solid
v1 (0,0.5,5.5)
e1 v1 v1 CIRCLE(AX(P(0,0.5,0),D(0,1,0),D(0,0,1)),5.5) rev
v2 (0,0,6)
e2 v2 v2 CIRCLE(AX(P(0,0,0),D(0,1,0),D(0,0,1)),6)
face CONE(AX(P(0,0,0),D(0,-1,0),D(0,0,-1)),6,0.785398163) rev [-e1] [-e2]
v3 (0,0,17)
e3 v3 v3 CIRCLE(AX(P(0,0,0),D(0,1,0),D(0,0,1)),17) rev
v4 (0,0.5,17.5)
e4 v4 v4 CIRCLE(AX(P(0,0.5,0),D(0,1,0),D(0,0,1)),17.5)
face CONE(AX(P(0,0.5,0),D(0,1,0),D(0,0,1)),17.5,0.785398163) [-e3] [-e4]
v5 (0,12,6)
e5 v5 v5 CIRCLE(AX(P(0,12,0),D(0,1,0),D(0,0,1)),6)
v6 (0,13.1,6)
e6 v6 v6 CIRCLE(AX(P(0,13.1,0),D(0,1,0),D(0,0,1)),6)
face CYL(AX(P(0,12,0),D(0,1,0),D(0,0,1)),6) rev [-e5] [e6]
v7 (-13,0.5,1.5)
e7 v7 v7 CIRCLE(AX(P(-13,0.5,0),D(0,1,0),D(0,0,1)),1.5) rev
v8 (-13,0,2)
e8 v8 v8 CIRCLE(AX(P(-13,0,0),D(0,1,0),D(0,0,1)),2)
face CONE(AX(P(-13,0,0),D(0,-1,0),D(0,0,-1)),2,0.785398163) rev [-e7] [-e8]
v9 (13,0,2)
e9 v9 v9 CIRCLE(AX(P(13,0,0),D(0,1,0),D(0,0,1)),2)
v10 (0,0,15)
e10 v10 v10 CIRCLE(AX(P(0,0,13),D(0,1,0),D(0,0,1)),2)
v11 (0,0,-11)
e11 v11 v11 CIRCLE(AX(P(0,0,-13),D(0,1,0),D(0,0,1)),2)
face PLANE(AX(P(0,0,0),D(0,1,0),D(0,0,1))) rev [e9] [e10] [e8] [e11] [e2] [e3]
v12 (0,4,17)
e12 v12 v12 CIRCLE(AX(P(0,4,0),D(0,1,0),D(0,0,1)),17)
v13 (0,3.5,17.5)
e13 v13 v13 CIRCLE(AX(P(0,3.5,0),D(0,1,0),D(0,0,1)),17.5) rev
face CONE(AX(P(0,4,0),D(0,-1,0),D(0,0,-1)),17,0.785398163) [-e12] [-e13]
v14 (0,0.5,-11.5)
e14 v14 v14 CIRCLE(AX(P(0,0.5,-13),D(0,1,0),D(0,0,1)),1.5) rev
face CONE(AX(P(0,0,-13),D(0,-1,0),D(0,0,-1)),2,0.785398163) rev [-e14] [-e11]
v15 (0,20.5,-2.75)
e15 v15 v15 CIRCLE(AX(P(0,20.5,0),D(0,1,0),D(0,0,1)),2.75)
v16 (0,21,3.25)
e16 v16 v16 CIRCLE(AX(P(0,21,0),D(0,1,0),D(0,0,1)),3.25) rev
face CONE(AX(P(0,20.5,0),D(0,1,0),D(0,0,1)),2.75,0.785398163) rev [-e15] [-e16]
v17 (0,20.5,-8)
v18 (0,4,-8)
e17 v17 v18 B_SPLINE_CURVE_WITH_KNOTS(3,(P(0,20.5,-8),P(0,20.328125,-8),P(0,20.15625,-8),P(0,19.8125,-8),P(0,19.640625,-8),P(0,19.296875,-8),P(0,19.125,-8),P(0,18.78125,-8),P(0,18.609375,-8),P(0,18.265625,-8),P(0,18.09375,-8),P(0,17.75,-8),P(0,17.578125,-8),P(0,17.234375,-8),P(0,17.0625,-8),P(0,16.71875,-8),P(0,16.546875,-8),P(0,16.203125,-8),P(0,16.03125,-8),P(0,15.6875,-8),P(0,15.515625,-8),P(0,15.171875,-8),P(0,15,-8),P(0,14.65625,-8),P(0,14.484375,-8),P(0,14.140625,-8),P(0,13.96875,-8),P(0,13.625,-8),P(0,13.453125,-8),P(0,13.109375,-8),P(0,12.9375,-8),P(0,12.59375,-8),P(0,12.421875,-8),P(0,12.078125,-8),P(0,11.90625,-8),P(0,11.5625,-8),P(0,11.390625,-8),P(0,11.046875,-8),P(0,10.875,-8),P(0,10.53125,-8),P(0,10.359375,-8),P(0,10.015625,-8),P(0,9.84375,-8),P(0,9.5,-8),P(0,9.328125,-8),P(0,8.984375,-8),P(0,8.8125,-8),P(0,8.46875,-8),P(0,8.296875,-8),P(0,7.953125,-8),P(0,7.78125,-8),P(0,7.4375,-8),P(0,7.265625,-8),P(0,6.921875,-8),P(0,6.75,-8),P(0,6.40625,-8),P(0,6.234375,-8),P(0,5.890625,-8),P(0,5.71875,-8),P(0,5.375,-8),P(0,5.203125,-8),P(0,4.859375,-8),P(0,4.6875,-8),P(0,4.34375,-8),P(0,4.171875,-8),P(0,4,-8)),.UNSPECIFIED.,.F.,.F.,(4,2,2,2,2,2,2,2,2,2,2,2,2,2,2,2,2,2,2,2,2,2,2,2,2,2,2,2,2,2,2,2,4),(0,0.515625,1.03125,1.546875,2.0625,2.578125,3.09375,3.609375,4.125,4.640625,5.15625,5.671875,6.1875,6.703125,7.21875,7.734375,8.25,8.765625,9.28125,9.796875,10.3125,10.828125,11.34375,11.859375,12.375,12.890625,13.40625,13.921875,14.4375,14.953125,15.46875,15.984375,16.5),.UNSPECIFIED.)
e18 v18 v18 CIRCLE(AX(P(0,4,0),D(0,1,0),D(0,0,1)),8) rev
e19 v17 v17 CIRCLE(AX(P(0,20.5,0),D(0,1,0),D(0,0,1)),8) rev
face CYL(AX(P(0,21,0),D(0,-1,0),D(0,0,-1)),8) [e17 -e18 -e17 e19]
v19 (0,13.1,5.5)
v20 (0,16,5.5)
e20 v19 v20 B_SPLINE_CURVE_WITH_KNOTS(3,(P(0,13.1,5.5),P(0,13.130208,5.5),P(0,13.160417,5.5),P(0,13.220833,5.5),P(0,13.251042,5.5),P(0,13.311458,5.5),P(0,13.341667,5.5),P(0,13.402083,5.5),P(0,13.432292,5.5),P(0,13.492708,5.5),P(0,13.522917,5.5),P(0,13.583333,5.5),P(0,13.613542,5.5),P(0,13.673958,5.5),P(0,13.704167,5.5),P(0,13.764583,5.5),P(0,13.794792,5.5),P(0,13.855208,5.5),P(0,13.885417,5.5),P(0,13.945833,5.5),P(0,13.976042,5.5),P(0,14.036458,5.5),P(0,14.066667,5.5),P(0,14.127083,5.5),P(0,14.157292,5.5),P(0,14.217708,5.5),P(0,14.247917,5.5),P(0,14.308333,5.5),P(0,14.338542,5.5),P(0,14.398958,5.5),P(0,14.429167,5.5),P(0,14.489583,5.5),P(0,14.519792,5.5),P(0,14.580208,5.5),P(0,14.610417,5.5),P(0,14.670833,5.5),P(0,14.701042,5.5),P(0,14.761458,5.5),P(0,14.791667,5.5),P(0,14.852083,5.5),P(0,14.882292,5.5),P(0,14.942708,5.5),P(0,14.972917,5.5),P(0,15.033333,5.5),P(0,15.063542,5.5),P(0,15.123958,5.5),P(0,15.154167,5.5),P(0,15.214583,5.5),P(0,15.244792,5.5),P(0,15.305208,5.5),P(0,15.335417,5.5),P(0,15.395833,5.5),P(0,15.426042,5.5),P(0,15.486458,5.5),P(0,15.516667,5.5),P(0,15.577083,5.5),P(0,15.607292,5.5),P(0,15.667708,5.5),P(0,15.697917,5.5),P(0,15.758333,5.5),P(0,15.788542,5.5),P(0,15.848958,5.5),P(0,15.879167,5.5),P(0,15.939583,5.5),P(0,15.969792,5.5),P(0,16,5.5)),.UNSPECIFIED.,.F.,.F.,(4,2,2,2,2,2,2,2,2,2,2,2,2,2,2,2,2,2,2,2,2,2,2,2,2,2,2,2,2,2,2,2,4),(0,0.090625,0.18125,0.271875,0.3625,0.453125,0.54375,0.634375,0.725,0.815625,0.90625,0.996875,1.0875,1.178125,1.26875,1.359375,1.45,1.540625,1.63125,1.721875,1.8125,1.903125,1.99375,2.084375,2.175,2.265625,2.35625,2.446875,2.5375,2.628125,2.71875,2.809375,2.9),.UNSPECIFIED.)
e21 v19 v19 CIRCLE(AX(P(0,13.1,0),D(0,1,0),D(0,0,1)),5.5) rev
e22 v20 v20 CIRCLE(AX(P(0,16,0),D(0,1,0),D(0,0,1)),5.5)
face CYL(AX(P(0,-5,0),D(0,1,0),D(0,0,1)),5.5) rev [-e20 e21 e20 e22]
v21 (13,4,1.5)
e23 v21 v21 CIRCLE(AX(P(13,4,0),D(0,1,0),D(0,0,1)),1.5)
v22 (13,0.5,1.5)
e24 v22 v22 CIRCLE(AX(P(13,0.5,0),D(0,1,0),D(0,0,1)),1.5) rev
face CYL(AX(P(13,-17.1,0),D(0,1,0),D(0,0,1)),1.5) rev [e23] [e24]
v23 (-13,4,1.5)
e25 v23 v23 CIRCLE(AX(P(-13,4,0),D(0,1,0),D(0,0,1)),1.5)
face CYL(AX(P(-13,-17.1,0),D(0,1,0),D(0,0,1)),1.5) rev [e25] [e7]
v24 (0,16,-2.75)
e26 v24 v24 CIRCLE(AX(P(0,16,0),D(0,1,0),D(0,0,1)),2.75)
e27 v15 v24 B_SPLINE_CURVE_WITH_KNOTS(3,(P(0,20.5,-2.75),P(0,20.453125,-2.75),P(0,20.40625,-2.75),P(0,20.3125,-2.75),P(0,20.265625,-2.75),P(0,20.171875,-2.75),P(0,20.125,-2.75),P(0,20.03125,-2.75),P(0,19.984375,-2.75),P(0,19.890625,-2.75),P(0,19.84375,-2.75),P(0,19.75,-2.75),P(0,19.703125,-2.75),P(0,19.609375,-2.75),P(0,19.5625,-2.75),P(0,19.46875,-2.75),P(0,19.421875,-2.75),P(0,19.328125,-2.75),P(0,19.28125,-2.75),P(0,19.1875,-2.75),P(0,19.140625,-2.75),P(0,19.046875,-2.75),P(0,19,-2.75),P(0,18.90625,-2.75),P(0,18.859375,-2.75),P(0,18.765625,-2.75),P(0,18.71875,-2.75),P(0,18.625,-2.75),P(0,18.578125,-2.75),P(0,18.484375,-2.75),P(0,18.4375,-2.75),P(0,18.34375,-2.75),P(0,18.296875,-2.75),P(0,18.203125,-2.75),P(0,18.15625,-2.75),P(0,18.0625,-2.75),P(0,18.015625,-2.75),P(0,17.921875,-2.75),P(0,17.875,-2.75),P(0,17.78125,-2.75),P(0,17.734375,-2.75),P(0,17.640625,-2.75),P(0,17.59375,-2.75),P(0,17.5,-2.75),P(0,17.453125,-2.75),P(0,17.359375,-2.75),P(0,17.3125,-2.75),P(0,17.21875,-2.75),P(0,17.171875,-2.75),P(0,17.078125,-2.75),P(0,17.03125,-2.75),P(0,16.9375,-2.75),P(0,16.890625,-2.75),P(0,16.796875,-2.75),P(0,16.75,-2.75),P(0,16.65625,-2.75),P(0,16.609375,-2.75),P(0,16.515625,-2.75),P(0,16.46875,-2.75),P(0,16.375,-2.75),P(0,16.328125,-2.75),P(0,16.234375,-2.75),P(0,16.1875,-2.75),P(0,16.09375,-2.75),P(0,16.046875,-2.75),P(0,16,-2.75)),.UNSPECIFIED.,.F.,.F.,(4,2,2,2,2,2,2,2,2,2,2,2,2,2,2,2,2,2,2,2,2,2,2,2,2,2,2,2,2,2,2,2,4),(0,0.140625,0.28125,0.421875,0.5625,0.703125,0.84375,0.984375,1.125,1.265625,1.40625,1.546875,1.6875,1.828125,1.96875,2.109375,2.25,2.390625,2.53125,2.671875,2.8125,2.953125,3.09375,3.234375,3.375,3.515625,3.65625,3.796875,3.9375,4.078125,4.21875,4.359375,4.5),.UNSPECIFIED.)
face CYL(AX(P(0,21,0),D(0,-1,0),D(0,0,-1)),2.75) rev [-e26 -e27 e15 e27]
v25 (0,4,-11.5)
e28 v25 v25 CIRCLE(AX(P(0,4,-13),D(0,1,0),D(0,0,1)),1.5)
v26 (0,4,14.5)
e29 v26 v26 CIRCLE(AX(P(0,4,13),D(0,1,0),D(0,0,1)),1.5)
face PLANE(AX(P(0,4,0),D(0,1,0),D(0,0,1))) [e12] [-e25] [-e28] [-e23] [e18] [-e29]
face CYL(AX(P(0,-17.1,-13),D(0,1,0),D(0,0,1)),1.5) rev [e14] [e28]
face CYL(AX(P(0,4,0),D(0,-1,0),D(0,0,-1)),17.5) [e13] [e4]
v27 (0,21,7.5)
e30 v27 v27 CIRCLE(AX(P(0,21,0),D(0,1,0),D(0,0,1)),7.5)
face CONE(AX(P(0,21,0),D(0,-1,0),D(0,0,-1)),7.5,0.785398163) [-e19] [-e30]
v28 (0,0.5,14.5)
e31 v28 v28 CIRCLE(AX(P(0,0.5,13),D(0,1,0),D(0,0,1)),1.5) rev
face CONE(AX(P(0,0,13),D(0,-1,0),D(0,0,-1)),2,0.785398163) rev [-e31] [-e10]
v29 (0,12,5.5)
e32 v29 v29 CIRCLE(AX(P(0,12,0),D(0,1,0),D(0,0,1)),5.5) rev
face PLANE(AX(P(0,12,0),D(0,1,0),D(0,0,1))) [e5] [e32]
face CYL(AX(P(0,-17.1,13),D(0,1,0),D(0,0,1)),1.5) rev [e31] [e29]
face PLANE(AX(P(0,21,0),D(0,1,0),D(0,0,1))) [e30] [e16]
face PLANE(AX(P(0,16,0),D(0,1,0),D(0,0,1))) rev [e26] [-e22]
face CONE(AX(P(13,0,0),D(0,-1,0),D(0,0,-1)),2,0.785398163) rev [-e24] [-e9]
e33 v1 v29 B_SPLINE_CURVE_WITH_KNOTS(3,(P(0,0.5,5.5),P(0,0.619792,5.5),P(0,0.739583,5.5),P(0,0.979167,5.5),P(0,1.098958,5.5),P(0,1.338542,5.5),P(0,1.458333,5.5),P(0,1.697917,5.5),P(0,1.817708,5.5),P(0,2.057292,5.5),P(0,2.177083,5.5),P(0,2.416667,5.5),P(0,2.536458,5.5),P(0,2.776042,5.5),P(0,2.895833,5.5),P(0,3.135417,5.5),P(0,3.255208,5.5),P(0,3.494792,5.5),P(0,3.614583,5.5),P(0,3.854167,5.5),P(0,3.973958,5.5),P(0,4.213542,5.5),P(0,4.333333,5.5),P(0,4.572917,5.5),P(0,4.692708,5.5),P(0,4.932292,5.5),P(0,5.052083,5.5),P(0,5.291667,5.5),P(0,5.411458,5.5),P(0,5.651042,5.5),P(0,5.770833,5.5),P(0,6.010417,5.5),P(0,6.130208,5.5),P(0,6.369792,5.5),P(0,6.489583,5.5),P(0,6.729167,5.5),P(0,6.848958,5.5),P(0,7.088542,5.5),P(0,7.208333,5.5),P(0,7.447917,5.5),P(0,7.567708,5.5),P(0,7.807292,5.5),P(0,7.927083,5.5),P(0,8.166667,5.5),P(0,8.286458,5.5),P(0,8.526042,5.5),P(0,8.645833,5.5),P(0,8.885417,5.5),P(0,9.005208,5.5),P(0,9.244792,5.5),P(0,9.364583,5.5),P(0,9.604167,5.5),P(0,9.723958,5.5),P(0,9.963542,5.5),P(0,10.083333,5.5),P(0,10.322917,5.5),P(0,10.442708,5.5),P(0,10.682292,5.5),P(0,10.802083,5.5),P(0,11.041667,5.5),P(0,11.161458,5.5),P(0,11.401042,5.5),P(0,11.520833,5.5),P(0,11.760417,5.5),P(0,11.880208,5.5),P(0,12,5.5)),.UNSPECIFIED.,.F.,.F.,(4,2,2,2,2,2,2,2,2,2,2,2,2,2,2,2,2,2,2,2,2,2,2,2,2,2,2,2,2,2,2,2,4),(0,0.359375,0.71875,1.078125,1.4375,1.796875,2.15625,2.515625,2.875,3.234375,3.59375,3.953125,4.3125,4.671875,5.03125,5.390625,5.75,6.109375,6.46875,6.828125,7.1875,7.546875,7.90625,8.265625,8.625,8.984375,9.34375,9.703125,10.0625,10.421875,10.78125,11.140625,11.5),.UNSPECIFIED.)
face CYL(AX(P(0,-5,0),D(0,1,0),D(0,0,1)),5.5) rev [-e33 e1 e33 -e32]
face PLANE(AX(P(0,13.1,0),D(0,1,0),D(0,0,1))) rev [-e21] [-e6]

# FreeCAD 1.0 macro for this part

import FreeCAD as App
import Part
import Sketcher
from FreeCAD import Vector
Q = App.Units.Quantity


def edges_at(feature, points):
    """Names of the edges that pass closest to the given points."""
    edges = feature.Shape.Edges
    near = lambda p: min(range(len(edges)), key=lambda i: edges[i].distToShape(Part.Vertex(*p))[0])
    return sorted({f"Edge{near(p) + 1}" for p in points})

doc = App.newDocument("Part")
body = doc.addObject("PartDesign::Body", "Body")

sketch1 = doc.addObject("Sketcher::SketchObject", "Sketch")
body.addObject(sketch1)
sketch1.AttachmentSupport = (doc.XZ_Plane, [""])
sketch1.MapMode = "FlatFace"
sketch1.addGeometry(Part.Circle(Vector(0, 0, 0), Vector(0, 0, 1), 18), False)
sketch1.addConstraint([
    Sketcher.Constraint("Coincident", 0, 3, -1, 1),
    Sketcher.Constraint("Diameter", 0, Q("35 mm")),
])
pad1 = doc.addObject("PartDesign::Pad", "Pad")
body.addObject(pad1)
pad1.Profile = sketch1
pad1.Length = 4
pad1.Reversed = True

sketch2 = doc.addObject("Sketcher::SketchObject", "Sketch001")
body.addObject(sketch2)
sketch2.AttachmentSupport = (doc.XZ_Plane, [""])
sketch2.MapMode = "FlatFace"
sketch2.addGeometry([
    Part.Circle(Vector(0, 0, 0), Vector(0, 0, 1), 8),
    Part.Circle(Vector(0, 0, 0), Vector(0, 0, 1), 2.8),
], False)
sketch2.addConstraint([
    Sketcher.Constraint("Coincident", 0, 3, -1, 1),
    Sketcher.Constraint("Coincident", 1, 3, -1, 1),
    Sketcher.Constraint("Diameter", 0, Q("16 mm")),
    Sketcher.Constraint("Diameter", 1, Q("5.5 mm")),
])
pad2 = doc.addObject("PartDesign::Pad", "Pad001")
body.addObject(pad2)
pad2.Profile = sketch2
pad2.Length = 4
pad2.Reversed = True

sketch3 = doc.addObject("Sketcher::SketchObject", "Sketch002")
body.addObject(sketch3)
sketch3.AttachmentSupport = (doc.XZ_Plane, [""])
sketch3.MapMode = "FlatFace"
sketch3.addGeometry([
    Part.Circle(Vector(0, 0, 0), Vector(0, 0, 1), 8),
    Part.Circle(Vector(0, 0, 0), Vector(0, 0, 1), 2.8),
], False)
sketch3.addConstraint([
    Sketcher.Constraint("Coincident", 0, 3, -1, 1),
    Sketcher.Constraint("Coincident", 1, 3, -1, 1),
    Sketcher.Constraint("Diameter", 0, Q("16 mm")),
    Sketcher.Constraint("Diameter", 1, Q("5.5 mm")),
])
pad3 = doc.addObject("PartDesign::Pad", "Pad002")
body.addObject(pad3)
pad3.Profile = sketch3
pad3.Length = 21
pad3.Reversed = True

sketch4 = doc.addObject("Sketcher::SketchObject", "Sketch003")
body.addObject(sketch4)
sketch4.AttachmentSupport = (doc.XZ_Plane, [""])
sketch4.MapMode = "FlatFace"
sketch4.AttachmentOffset = App.Placement(Vector(0, 0, -16), App.Rotation())
sketch4.addGeometry(Part.Circle(Vector(0, 0, 0), Vector(0, 0, 1), 6), False)
sketch4.addConstraint([
    Sketcher.Constraint("Coincident", 0, 3, -1, 1),
    Sketcher.Constraint("Diameter", 0, Q("11 mm")),
])
pocket1 = doc.addObject("PartDesign::Pocket", "Pocket")
body.addObject(pocket1)
pocket1.Profile = sketch4
pocket1.Length = 21
pocket1.Reversed = True

sketch5 = doc.addObject("Sketcher::SketchObject", "Sketch004")
body.addObject(sketch5)
sketch5.AttachmentSupport = (doc.XZ_Plane, [""])
sketch5.MapMode = "FlatFace"
sketch5.AttachmentOffset = App.Placement(Vector(0, 0, -13.1), App.Rotation())
sketch5.addGeometry(Part.Circle(Vector(0, 0, 0), Vector(0, 0, 1), 6), False)
sketch5.addConstraint([
    Sketcher.Constraint("Coincident", 0, 3, -1, 1),
    Sketcher.Constraint("Diameter", 0, Q("12 mm")),
])
pocket2 = doc.addObject("PartDesign::Pocket", "Pocket001")
body.addObject(pocket2)
pocket2.Profile = sketch5
pocket2.Length = 1.1
pocket2.Reversed = True

sketch6 = doc.addObject("Sketcher::SketchObject", "Sketch005")
body.addObject(sketch6)
sketch6.AttachmentSupport = (doc.XZ_Plane, [""])
sketch6.MapMode = "FlatFace"
sketch6.AttachmentOffset = App.Placement(Vector(0, 0, -4), App.Rotation())
sketch6.addGeometry([
    Part.Circle(Vector(0, -13, 0), Vector(0, 0, 1), 1.5),
    Part.Circle(Vector(13, 0, 0), Vector(0, 0, 1), 1.5),
    Part.Circle(Vector(0, 13, 0), Vector(0, 0, 1), 1.5),
    Part.Circle(Vector(-13, 0, 0), Vector(0, 0, 1), 1.5),
], False)
sketch6.addConstraint([
    Sketcher.Constraint("Equal", 0, 1),
    Sketcher.Constraint("Equal", 1, 2),
    Sketcher.Constraint("Equal", 2, 3),
    Sketcher.Constraint("Symmetric", 0, 3, 2, 3, -1, 1),
    Sketcher.Constraint("Symmetric", 1, 3, 3, 3, -1, 1),
    Sketcher.Constraint("PointOnObject", 0, 3, -2),
    Sketcher.Constraint("PointOnObject", 1, 3, -1),
    Sketcher.Constraint("Diameter", 0, Q("3 mm")),
    Sketcher.Constraint("DistanceY", 0, 3, -1, 1, Q("13 mm")),
    Sketcher.Constraint("DistanceX", -1, 1, 1, 3, Q("13 mm")),
])
pocket3 = doc.addObject("PartDesign::Pocket", "Pocket002")
body.addObject(pocket3)
pocket3.Profile = sketch6
pocket3.Length = 21.1
pocket3.Reversed = True
doc.recompute()

chamfer = doc.addObject("PartDesign::Chamfer", "Chamfer")
body.addObject(chamfer)
chamfer.Base = (pocket3, edges_at(pocket3, [
    (0, 21, 8),
    (0, 21, 2.75),
    (0, 0, -17.5),
    (0, 0, -5.5),
    (0, 0, -14.5),
    (13, 0, -1.5),
    (0, 0, 11.5),
    (-13, 0, -1.5),
    (0, 4, -17.5),
]))
chamfer.Size = 0.5

doc.recompute()
